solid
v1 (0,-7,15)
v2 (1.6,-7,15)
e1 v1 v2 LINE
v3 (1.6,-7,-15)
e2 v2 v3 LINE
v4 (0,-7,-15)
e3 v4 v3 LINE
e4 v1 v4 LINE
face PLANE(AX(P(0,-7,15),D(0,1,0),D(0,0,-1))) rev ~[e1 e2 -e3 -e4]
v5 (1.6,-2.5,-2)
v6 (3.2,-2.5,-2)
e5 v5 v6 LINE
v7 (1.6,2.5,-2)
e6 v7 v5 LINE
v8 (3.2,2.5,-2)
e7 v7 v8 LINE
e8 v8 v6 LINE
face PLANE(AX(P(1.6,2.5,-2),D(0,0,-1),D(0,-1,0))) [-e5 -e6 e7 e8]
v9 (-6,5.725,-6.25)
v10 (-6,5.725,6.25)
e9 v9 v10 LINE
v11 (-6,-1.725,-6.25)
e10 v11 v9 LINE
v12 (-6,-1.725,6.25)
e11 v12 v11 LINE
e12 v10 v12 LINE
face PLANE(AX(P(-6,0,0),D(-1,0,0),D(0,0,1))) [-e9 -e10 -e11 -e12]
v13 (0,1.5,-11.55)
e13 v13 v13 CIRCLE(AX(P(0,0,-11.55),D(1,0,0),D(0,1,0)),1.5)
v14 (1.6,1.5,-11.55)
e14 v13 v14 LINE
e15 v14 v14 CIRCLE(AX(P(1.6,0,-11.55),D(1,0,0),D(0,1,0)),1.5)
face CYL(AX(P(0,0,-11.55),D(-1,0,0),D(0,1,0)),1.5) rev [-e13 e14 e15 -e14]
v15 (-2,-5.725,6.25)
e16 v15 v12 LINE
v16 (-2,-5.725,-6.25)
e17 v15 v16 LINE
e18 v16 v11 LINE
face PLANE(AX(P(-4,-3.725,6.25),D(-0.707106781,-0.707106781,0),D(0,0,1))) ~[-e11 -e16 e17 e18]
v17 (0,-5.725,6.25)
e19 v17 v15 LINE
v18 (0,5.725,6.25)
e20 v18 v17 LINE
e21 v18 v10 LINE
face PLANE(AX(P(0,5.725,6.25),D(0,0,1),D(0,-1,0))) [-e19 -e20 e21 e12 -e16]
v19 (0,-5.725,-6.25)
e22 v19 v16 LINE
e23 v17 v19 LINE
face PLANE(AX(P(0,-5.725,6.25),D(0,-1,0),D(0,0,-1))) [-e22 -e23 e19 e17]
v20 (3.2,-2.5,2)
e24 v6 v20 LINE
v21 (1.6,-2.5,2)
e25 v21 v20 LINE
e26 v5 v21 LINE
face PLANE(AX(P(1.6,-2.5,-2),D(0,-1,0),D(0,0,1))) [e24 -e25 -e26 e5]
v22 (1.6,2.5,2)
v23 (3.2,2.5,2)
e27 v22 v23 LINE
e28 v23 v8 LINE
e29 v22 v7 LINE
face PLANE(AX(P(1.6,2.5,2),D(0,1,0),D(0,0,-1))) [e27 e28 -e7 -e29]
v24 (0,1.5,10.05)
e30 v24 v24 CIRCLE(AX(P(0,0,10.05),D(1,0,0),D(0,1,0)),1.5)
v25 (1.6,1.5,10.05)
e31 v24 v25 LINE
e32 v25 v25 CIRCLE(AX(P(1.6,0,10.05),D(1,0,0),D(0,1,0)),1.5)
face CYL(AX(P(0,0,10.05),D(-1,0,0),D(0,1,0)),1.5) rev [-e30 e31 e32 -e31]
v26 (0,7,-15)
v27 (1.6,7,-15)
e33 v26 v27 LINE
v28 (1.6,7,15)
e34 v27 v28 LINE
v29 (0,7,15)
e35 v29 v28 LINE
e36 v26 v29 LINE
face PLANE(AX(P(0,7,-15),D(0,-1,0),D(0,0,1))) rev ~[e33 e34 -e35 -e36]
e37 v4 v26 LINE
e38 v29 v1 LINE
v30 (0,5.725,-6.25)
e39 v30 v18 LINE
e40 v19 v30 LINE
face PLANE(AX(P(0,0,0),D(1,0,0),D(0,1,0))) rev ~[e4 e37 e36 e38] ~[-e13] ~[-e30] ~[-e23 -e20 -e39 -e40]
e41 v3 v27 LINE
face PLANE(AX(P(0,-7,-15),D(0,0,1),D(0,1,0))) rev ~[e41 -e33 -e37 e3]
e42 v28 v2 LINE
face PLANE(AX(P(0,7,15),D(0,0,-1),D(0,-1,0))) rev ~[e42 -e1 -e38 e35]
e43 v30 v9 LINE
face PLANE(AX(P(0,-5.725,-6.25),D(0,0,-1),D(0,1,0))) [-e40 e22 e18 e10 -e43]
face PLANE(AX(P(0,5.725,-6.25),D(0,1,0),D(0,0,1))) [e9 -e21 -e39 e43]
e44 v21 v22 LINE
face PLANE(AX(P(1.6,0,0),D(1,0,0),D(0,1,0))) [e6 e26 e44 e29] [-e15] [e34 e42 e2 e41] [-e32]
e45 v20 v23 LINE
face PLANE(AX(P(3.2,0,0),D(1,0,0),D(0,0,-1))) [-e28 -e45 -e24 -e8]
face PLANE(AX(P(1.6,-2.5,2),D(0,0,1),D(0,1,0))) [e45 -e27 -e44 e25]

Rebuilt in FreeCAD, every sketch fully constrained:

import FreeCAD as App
import Part
import Sketcher

V = App.Vector
Q = App.Units.Quantity


def edges_at(feature, points):
    """Names of the edges that pass closest to the given points."""
    edges = feature.Shape.Edges
    near = lambda p: min(range(len(edges)), key=lambda i: edges[i].distToShape(Part.Vertex(*p))[0])
    return sorted({f"Edge{near(p) + 1}" for p in points})


def add_polygon(sketch, points):
    """Adds a closed chain of lines whose ends are joined by coincident constraints."""
    first, n = sketch.GeometryCount, len(points)
    for a, b in zip(points, points[1:] + points[:1]):
        sketch.addGeometry(Part.LineSegment(App.Vector(*a, 0), App.Vector(*b, 0)), False)
    for i in range(n):
        sketch.addConstraint(Sketcher.Constraint("Coincident", first + i, 2, first + (i + 1) % n, 1))

doc = App.newDocument("Part")
body = doc.addObject("PartDesign::Body", "Body")

# Sketch on YZ plane
sketch1 = body.newObject("Sketcher::SketchObject", "Sketch")
sketch1.AttachmentSupport = (doc.getObject("YZ_Plane"), [""])
sketch1.MapMode = "FlatFace"
add_polygon(sketch1, [(7, -15), (7, 15), (-7, 15), (-7, -15)])  # lines 0-3
sketch1.addGeometry(Part.Circle(V(0, -11.6, 0), V(0, 0, 1), 1.5), False)  # 4
sketch1.addGeometry(Part.Circle(V(0, 10.1, 0), V(0, 0, 1), 1.5), False)  # 5
sketch1.addConstraint(Sketcher.Constraint("Vertical", 0))
sketch1.addConstraint(Sketcher.Constraint("Horizontal", 1))
sketch1.addConstraint(Sketcher.Constraint("Vertical", 2))
sketch1.addConstraint(Sketcher.Constraint("Horizontal", 3))
sketch1.addConstraint(Sketcher.Constraint("Equal", 4, 5))
sketch1.addConstraint(Sketcher.Constraint("Symmetric", 0, 2, 2, 2, -1, 1))
sketch1.addConstraint(Sketcher.Constraint("PointOnObject", 4, 3, -2))
sketch1.addConstraint(Sketcher.Constraint("PointOnObject", 5, 3, -2))
sketch1.addConstraint(Sketcher.Constraint("Diameter", 4, Q("3 mm")))
sketch1.addConstraint(Sketcher.Constraint("DistanceX", 1, 2, 1, 1, Q("14 mm")))
sketch1.addConstraint(Sketcher.Constraint("DistanceY", 0, 1, 0, 2, Q("30 mm")))
sketch1.addConstraint(Sketcher.Constraint("DistanceY", 2, 2, 4, 3, Q("3.45 mm")))
sketch1.addConstraint(Sketcher.Constraint("DistanceY", 4, 3, 5, 3, Q("21.6 mm")))
pad1 = body.newObject("PartDesign::Pad", "Pad")
pad1.Profile = sketch1
pad1.Length = 1.6

# Sketch on YZ plane
sketch2 = body.newObject("Sketcher::SketchObject", "Sketch001")
sketch2.AttachmentSupport = (doc.getObject("YZ_Plane"), [""])
sketch2.MapMode = "FlatFace"
sketch2.AttachmentOffset = App.Placement(V(0, 0, 1.6), App.Rotation())
add_polygon(sketch2, [(2.5, -2), (2.5, 2), (-2.5, 2), (-2.5, -2)])  # lines 0-3
sketch2.addConstraint(Sketcher.Constraint("Vertical", 0))
sketch2.addConstraint(Sketcher.Constraint("Horizontal", 1))
sketch2.addConstraint(Sketcher.Constraint("Vertical", 2))
sketch2.addConstraint(Sketcher.Constraint("Horizontal", 3))
sketch2.addConstraint(Sketcher.Constraint("Symmetric", 0, 2, 2, 2, -1, 1))
sketch2.addConstraint(Sketcher.Constraint("DistanceX", 1, 2, 1, 1, Q("5 mm")))
sketch2.addConstraint(Sketcher.Constraint("DistanceY", 0, 1, 0, 2, Q("4 mm")))
pad2 = body.newObject("PartDesign::Pad", "Pad001")
pad2.Profile = sketch2
pad2.Length = 1.6

# Sketch on YZ plane
sketch3 = body.newObject("Sketcher::SketchObject", "Sketch002")
sketch3.AttachmentSupport = (doc.getObject("YZ_Plane"), [""])
sketch3.MapMode = "FlatFace"
add_polygon(sketch3, [(-6, -6), (-6, 6), (6, 6), (6, -6)])  # lines 0-3
sketch3.addConstraint(Sketcher.Constraint("Vertical", 0))
sketch3.addConstraint(Sketcher.Constraint("Horizontal", 1))
sketch3.addConstraint(Sketcher.Constraint("Vertical", 2))
sketch3.addConstraint(Sketcher.Constraint("Horizontal", 3))
sketch3.addConstraint(Sketcher.Constraint("Symmetric", 0, 2, 2, 2, -1, 1))
sketch3.addConstraint(Sketcher.Constraint("DistanceY", 0, 1, 0, 2, Q("12.5 mm")))
sketch3.addConstraint(Sketcher.Constraint("DistanceX", 1, 1, 1, 2, Q("11.45 mm")))
pad3 = body.newObject("PartDesign::Pad", "Pad002")
pad3.Profile = sketch3
pad3.Length = 6
pad3.Reversed = True
doc.recompute()

chamfer = body.newObject("PartDesign::Chamfer", "Chamfer")
chamfer.Base = (pad3, edges_at(pad3, [(-6, -5.725, 0)]))
chamfer.Size = 4

doc.recompute()
